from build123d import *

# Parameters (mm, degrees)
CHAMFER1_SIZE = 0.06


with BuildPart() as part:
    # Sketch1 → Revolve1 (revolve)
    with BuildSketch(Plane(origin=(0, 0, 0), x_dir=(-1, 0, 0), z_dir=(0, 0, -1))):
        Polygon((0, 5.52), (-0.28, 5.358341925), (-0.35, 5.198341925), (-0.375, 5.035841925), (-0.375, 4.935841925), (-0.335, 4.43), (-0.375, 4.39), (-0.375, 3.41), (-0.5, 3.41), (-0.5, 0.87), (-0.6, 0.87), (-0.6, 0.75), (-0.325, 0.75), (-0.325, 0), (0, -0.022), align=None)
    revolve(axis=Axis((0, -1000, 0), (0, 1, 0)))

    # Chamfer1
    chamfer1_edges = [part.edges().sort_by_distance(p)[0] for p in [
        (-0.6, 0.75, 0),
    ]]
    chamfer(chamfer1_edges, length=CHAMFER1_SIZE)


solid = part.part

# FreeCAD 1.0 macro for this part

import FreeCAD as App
import Part
import Sketcher
from FreeCAD import Vector
Q = App.Units.Quantity


def edges_at(feature, points):
    """Names of the edges that pass closest to the given points."""
    edges = feature.Shape.Edges
    near = lambda p: min(range(len(edges)), key=lambda i: edges[i].distToShape(Part.Vertex(*p))[0])
    return sorted({f"Edge{near(p) + 1}" for p in points})

doc = App.newDocument("Part")
body = doc.addObject("PartDesign::Body", "Body")

sketch1 = body.newObject("Sketcher::SketchObject", "Sketch")
sketch1.AttachmentSupport = (doc.getObject("XY_Plane"), [""])
sketch1.MapMode = "FlatFace"
sketch1.addGeometry([
    Part.LineSegment(Vector(0, 5.52, 0), Vector(0.28, 5.358342, 0)),
    Part.LineSegment(Vector(0.28, 5.358342, 0), Vector(0.35, 5.198342, 0)),
    Part.LineSegment(Vector(0.35, 5.198342, 0), Vector(0.375, 5.035842, 0)),
    Part.LineSegment(Vector(0.375, 5.035842, 0), Vector(0.375, 4.935842, 0)),
    Part.LineSegment(Vector(0.375, 4.935842, 0), Vector(0.335, 4.43, 0)),
    Part.LineSegment(Vector(0.335, 4.43, 0), Vector(0.375, 4.39, 0)),
    Part.LineSegment(Vector(0.375, 4.39, 0), Vector(0.375, 3.41, 0)),
    Part.LineSegment(Vector(0.375, 3.41, 0), Vector(0.5, 3.41, 0)),
    Part.LineSegment(Vector(0.5, 3.41, 0), Vector(0.5, 0.87, 0)),
    Part.LineSegment(Vector(0.5, 0.87, 0), Vector(0.6, 0.87, 0)),
    Part.LineSegment(Vector(0.6, 0.87, 0), Vector(0.6, 0.75, 0)),
    Part.LineSegment(Vector(0.6, 0.75, 0), Vector(0.325, 0.75, 0)),
    Part.LineSegment(Vector(0.325, 0.75, 0), Vector(0.325, 0, 0)),
    Part.LineSegment(Vector(0.325, 0, 0), Vector(0, -0.022, 0)),
    Part.LineSegment(Vector(0, -0.022, 0), Vector(0, 5.52, 0)),
], False)
sketch1.addConstraint([
    Sketcher.Constraint("Coincident", 0, 2, 1, 1),
    Sketcher.Constraint("Coincident", 1, 2, 2, 1),
    Sketcher.Constraint("Coincident", 2, 2, 3, 1),
    Sketcher.Constraint("Coincident", 3, 2, 4, 1),
    Sketcher.Constraint("Coincident", 4, 2, 5, 1),
    Sketcher.Constraint("Coincident", 5, 2, 6, 1),
    Sketcher.Constraint("Coincident", 6, 2, 7, 1),
    Sketcher.Constraint("Coincident", 7, 2, 8, 1),
    Sketcher.Constraint("Coincident", 8, 2, 9, 1),
    Sketcher.Constraint("Coincident", 9, 2, 10, 1),
    Sketcher.Constraint("Coincident", 10, 2, 11, 1),
    Sketcher.Constraint("Coincident", 11, 2, 12, 1),
    Sketcher.Constraint("Coincident", 12, 2, 13, 1),
    Sketcher.Constraint("Coincident", 13, 2, 14, 1),
    Sketcher.Constraint("Coincident", 14, 2, 0, 1),
    Sketcher.Constraint("Vertical", 3),
    Sketcher.Constraint("Vertical", 6),
    Sketcher.Constraint("Horizontal", 7),
    Sketcher.Constraint("Vertical", 8),
    Sketcher.Constraint("Horizontal", 9),
    Sketcher.Constraint("Vertical", 10),
    Sketcher.Constraint("Horizontal", 11),
    Sketcher.Constraint("Vertical", 12),
    Sketcher.Constraint("Vertical", 14),
    Sketcher.Constraint("PointOnObject", 12, 2, -1),
    Sketcher.Constraint("PointOnObject", 13, 2, -2),
    Sketcher.Constraint("Vertical", 3, 2, 5, 2),
    Sketcher.Constraint("Equal", 9, 3),
    Sketcher.Constraint("Angle", 0, Q("-30 deg")),
    Sketcher.Constraint("Angle", 5, Q("-45 deg")),
    Sketcher.Constraint("DistanceX", 9, 1, 9, 2, Q("0.1 mm")),
    Sketcher.Constraint("DistanceY", 6, 2, 6, 1, Q("0.98 mm")),
    Sketcher.Constraint("DistanceY", 8, 2, 8, 1, Q("2.54 mm")),
    Sketcher.Constraint("DistanceY", 10, 2, 10, 1, Q("0.12 mm")),
    Sketcher.Constraint("DistanceY", 12, 2, 12, 1, Q("0.75 mm")),
    Sketcher.Constraint("DistanceX", -1, 1, 7, 2, Q("0.5 mm")),
    Sketcher.Constraint("DistanceX", 7, 1, 7, 2, Q("0.125 mm")),
    Sketcher.Constraint("DistanceX", 11, 2, 11, 1, Q("0.275 mm")),
    Sketcher.Constraint("DistanceY", 14, 1, 14, 2, Q("5.542 mm")),
    Sketcher.Constraint("DistanceX", -1, 1, 0, 2, Q("0.28 mm")),
    Sketcher.Constraint("DistanceX", -1, 1, 1, 2, Q("0.35 mm")),
    Sketcher.Constraint("DistanceY", -1, 1, 4, 2, Q("4.43 mm")),
    Sketcher.Constraint("DistanceY", -1, 1, 14, 2, Q("5.52 mm")),
    Sketcher.Constraint("DistanceY", 1, 2, 0, 2, Q("0.16 mm")),
    Sketcher.Constraint("DistanceY", 2, 2, 1, 2, Q("0.1625 mm")),
])
revolution = body.newObject("PartDesign::Revolution", "Revolution")
revolution.Profile = sketch1
revolution.ReferenceAxis = (sketch1, ["V_Axis"])
revolution.Angle = 360
doc.recompute()

chamfer = body.newObject("PartDesign::Chamfer", "Chamfer")
chamfer.Base = (revolution, edges_at(revolution, [(-0.6, 0.75, 0)]))
chamfer.Size = 0.06

doc.recompute()
